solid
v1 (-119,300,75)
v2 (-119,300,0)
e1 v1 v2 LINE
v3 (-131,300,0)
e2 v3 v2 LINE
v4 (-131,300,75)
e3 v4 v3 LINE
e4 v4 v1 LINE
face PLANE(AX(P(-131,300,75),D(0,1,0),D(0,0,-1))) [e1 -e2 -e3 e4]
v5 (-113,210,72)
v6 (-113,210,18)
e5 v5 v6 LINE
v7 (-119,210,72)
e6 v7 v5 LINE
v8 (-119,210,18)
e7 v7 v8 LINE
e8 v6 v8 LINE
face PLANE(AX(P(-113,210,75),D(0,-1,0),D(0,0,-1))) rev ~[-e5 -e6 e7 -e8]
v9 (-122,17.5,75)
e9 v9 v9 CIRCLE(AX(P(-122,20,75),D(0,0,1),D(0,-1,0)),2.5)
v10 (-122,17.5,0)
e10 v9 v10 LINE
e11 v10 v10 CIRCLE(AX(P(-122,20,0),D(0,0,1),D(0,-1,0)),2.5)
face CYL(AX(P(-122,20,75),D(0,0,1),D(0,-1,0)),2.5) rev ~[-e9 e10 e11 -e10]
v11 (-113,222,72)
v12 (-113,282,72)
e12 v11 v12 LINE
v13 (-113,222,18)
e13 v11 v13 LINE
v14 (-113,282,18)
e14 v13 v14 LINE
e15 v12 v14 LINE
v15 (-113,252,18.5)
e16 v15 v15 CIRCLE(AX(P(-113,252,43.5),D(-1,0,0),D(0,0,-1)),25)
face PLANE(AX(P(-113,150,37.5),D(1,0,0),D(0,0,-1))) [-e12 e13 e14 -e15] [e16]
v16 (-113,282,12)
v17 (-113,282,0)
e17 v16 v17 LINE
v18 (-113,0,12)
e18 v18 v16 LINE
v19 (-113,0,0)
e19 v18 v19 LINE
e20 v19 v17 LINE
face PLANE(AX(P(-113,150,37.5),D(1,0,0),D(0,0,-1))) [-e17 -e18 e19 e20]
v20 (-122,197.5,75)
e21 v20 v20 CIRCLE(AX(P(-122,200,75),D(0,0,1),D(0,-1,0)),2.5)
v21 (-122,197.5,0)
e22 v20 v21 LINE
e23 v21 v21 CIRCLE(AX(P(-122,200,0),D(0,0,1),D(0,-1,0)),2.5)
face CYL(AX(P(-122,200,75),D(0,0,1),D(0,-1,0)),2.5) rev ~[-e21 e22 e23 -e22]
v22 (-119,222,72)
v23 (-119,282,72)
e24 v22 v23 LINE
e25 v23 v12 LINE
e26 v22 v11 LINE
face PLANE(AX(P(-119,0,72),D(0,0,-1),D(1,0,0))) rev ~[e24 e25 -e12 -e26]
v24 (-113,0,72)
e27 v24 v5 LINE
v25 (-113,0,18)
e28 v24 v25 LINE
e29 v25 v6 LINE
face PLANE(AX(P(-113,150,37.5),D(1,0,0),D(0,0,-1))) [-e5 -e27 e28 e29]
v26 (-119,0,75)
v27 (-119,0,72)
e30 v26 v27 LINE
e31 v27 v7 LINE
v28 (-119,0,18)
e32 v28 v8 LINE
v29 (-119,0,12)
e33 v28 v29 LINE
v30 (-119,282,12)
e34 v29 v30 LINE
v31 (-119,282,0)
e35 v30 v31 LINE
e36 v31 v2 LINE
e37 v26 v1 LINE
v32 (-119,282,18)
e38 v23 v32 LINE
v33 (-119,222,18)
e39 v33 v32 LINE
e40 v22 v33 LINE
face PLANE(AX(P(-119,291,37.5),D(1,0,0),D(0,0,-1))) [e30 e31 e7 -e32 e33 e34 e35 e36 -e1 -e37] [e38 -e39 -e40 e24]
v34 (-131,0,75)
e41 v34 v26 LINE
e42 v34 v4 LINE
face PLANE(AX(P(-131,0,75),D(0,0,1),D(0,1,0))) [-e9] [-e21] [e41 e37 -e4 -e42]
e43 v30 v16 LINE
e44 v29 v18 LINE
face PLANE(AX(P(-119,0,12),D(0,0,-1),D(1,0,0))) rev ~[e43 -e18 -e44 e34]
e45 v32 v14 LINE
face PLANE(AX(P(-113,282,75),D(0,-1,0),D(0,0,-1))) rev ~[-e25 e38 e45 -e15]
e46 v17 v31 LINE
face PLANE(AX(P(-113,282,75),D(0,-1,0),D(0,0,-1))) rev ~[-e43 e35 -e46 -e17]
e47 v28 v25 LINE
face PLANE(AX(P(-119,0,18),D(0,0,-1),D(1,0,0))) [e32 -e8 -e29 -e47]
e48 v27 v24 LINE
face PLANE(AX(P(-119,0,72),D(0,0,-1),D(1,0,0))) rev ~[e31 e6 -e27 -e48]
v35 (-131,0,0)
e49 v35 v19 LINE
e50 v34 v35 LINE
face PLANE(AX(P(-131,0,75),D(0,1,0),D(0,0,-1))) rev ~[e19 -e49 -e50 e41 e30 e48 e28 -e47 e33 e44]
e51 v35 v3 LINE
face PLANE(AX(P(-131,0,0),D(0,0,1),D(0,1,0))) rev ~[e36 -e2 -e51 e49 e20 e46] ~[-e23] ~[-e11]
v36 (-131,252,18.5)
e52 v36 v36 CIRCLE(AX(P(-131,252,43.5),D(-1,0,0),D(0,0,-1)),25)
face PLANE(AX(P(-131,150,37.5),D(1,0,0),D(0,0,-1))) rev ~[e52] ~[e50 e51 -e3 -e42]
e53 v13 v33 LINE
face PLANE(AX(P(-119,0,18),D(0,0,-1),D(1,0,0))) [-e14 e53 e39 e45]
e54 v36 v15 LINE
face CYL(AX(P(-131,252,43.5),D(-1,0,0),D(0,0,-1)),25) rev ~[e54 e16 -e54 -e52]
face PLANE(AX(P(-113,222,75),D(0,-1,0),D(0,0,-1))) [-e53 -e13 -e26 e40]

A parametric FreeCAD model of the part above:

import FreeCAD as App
import Part
import Sketcher

V = App.Vector


def add_polygon(sketch, points):
    """Adds a closed chain of lines whose ends are joined by coincident constraints."""
    first, n = sketch.GeometryCount, len(points)
    for a, b in zip(points, points[1:] + points[:1]):
        sketch.addGeometry(Part.LineSegment(App.Vector(*a, 0), App.Vector(*b, 0)), False)
    for i in range(n):
        sketch.addConstraint(Sketcher.Constraint("Coincident", first + i, 2, first + (i + 1) % n, 1))

doc = App.newDocument("Part")
params = doc.addObject("Spreadsheet::Sheet", "Params")
for row, (alias, value) in enumerate([
    ("sketch1_width", "75 mm"),
    ("sketch1_height", "300 mm"),
    ("pad1_length", "18 mm"),
    ("sketch2_width", "75 mm"),
    ("sketch2_width2", "57 mm"),
    ("sketch2_height", "18 mm"),
    ("sketch2_height2", "12 mm"),
    ("pocket1_length", "6 mm"),
    ("sketch3_width", "6 mm"),
    ("sketch3_width2", "3 mm"),
    ("pocket2_length", "300 mm"),
    ("sketch4_diameter", "50 mm"),
    ("pocket3_length", "18 mm"),
    ("sketch5_diameter", "5 mm"),
    ("pocket4_length", "75 mm"),
], start=1):
    params.set(f"A{row}", alias)
    params.set(f"B{row}", "=" + value)
    params.setAlias(f"B{row}", alias)

body = doc.addObject("PartDesign::Body", "Body")

sketch1 = doc.addObject("Sketcher::SketchObject", "Sketch")
body.addObject(sketch1)
sketch1.AttachmentSupport = (doc.XY_Plane, [""])
sketch1.MapMode = "FlatFace"
add_polygon(sketch1, [(-75, 300), (-75, 0), (0, 0), (0, 300)])
sketch1.addConstraint(Sketcher.Constraint("Vertical", 0))
sketch1.addConstraint(Sketcher.Constraint("Horizontal", 1))
sketch1.addConstraint(Sketcher.Constraint("Vertical", 2))
sketch1.addConstraint(Sketcher.Constraint("Horizontal", 3))
sketch1.addConstraint(Sketcher.Constraint("Coincident", 1, 2, -1, 1))
sketch1.addConstraint(Sketcher.Constraint("DistanceX", 1, 1, 1, 2, 75.0))
sketch1.addConstraint(Sketcher.Constraint("DistanceY", 0, 2, 0, 1, 300.0))
sketch1.setExpression("Constraints[9]", "Params.sketch1_width")
sketch1.setExpression("Constraints[10]", "Params.sketch1_height")
pad1 = doc.addObject("PartDesign::Pad", "Pad")
body.addObject(pad1)
pad1.Profile = sketch1
pad1.setExpression("Length", "Params.pad1_length")

sketch2 = doc.addObject("Sketcher::SketchObject", "Sketch001")
body.addObject(sketch2)
sketch2.AttachmentSupport = (doc.XY_Plane, [""])
sketch2.MapMode = "FlatFace"
sketch2.AttachmentOffset = App.Placement(V(0, 0, 18), App.Rotation())
add_polygon(sketch2, [(-75, 300), (-75, 282), (0, 282), (0, 300)])
add_polygon(sketch2, [(-75, 222), (-75, 210), (-18, 210), (-18, 222)])
sketch2.addConstraint(Sketcher.Constraint("Vertical", 0))
sketch2.addConstraint(Sketcher.Constraint("Horizontal", 1))
sketch2.addConstraint(Sketcher.Constraint("Vertical", 2))
sketch2.addConstraint(Sketcher.Constraint("Horizontal", 3))
sketch2.addConstraint(Sketcher.Constraint("Vertical", 4))
sketch2.addConstraint(Sketcher.Constraint("Horizontal", 5))
sketch2.addConstraint(Sketcher.Constraint("Vertical", 6))
sketch2.addConstraint(Sketcher.Constraint("Horizontal", 7))
sketch2.addConstraint(Sketcher.Constraint("PointOnObject", 1, 2, -2))
sketch2.addConstraint(Sketcher.Constraint("Vertical", 3, 2, 4, 2))
sketch2.addConstraint(Sketcher.Constraint("DistanceX", 1, 1, 1, 2, 75.0))
sketch2.addConstraint(Sketcher.Constraint("DistanceX", 5, 1, 5, 2, 57.0))
sketch2.addConstraint(Sketcher.Constraint("DistanceY", 0, 2, 0, 1, 18.0))
sketch2.addConstraint(Sketcher.Constraint("DistanceY", 4, 2, 4, 1, 12.0))
sketch2.addConstraint(Sketcher.Constraint("DistanceY", -1, 1, 0, 2, 282.0))
sketch2.addConstraint(Sketcher.Constraint("DistanceY", -1, 1, 4, 2, 210.0))
sketch2.setExpression("Constraints[18]", "Params.sketch2_width")
sketch2.setExpression("Constraints[19]", "Params.sketch2_width2")
sketch2.setExpression("Constraints[20]", "Params.sketch2_height")
sketch2.setExpression("Constraints[21]", "Params.sketch2_height2")
pocket1 = doc.addObject("PartDesign::Pocket", "Pocket")
body.addObject(pocket1)
pocket1.Profile = sketch2
pocket1.setExpression("Length", "Params.pocket1_length")

sketch3 = doc.addObject("Sketcher::SketchObject", "Sketch002")
body.addObject(sketch3)
sketch3.AttachmentSupport = (doc.XZ_Plane, [""])
sketch3.MapMode = "FlatFace"
add_polygon(sketch3, [(-18, 18), (-18, 12), (-12, 12), (-12, 18)])
add_polygon(sketch3, [(-75, 18), (-75, 12), (-72, 12), (-72, 18)])
sketch3.addConstraint(Sketcher.Constraint("Vertical", 0))
sketch3.addConstraint(Sketcher.Constraint("Horizontal", 1))
sketch3.addConstraint(Sketcher.Constraint("Vertical", 2))
sketch3.addConstraint(Sketcher.Constraint("Horizontal", 3))
sketch3.addConstraint(Sketcher.Constraint("Vertical", 4))
sketch3.addConstraint(Sketcher.Constraint("Horizontal", 5))
sketch3.addConstraint(Sketcher.Constraint("Vertical", 6))
sketch3.addConstraint(Sketcher.Constraint("Horizontal", 7))
sketch3.addConstraint(Sketcher.Constraint("Horizontal", 1, 2, 4, 2))
sketch3.addConstraint(Sketcher.Constraint("Horizontal", 3, 2, 6, 2))
sketch3.addConstraint(Sketcher.Constraint("Equal", 3, 0))
sketch3.addConstraint(Sketcher.Constraint("DistanceX", 1, 1, 1, 2, 6.0))
sketch3.addConstraint(Sketcher.Constraint("DistanceX", 5, 1, 5, 2, 3.0))
sketch3.addConstraint(Sketcher.Constraint("DistanceX", 0, 2, -1, 1, 18.0))
sketch3.addConstraint(Sketcher.Constraint("DistanceY", -1, 1, 0, 2, 12.0))
sketch3.addConstraint(Sketcher.Constraint("DistanceX", 4, 2, -1, 1, 75.0))
sketch3.setExpression("Constraints[19]", "Params.sketch3_width")
sketch3.setExpression("Constraints[20]", "Params.sketch3_width2")
pocket2 = doc.addObject("PartDesign::Pocket", "Pocket001")
body.addObject(pocket2)
pocket2.Profile = sketch3
pocket2.setExpression("Length", "Params.pocket2_length")

sketch4 = doc.addObject("Sketcher::SketchObject", "Sketch003")
body.addObject(sketch4)
sketch4.AttachmentSupport = (doc.XY_Plane, [""])
sketch4.MapMode = "FlatFace"
sketch4.addGeometry(Part.Circle(V(-44, 252, 0), V(0, 0, 1), 25), False)
sketch4.addConstraint(Sketcher.Constraint("Diameter", 0, 50.0))
sketch4.addConstraint(Sketcher.Constraint("DistanceY", -1, 1, 0, 3, 252.0))
sketch4.addConstraint(Sketcher.Constraint("DistanceX", 0, 3, -1, 1, 43.5))
sketch4.setExpression("Constraints[0]", "Params.sketch4_diameter")
pocket3 = doc.addObject("PartDesign::Pocket", "Pocket002")
body.addObject(pocket3)
pocket3.Profile = sketch4
pocket3.setExpression("Length", "Params.pocket3_length")
pocket3.Reversed = True

sketch5 = doc.addObject("Sketcher::SketchObject", "Sketch004")
body.addObject(sketch5)
sketch5.AttachmentSupport = (doc.YZ_Plane, [""])
sketch5.MapMode = "FlatFace"
sketch5.AttachmentOffset = App.Placement(V(0, 0, -75), App.Rotation())
sketch5.addGeometry(Part.Circle(V(20, 9, 0), V(0, 0, 1), 2.5), False)
sketch5.addGeometry(Part.Circle(V(200, 9, 0), V(0, 0, 1), 2.5), False)
sketch5.addConstraint(Sketcher.Constraint("Equal", 0, 1))
sketch5.addConstraint(Sketcher.Constraint("Horizontal", 0, 3, 1, 3))
sketch5.addConstraint(Sketcher.Constraint("Diameter", 0, 5.0))
sketch5.addConstraint(Sketcher.Constraint("DistanceX", -1, 1, 0, 3, 20.0))
sketch5.addConstraint(Sketcher.Constraint("DistanceY", -1, 1, 0, 3, 9.0))
sketch5.addConstraint(Sketcher.Constraint("DistanceX", -1, 1, 1, 3, 200.0))
sketch5.setExpression("Constraints[2]", "Params.sketch5_diameter")
pocket4 = doc.addObject("PartDesign::Pocket", "Pocket003")
body.addObject(pocket4)
pocket4.Profile = sketch5
pocket4.setExpression("Length", "Params.pocket4_length")
pocket4.Reversed = True
body2 = doc.addObject("PartDesign::Body", "Body001")
doc.recompute()

body.Placement = App.Placement(V(-131, 0, 0), App.Rotation(V(0, 1, 0), 90))
boolean = doc.addObject("PartDesign::Boolean", "Boolean")
body2.addObject(boolean)
boolean.Type = "Fuse"
boolean.addObjects([body])

doc.recompute()
